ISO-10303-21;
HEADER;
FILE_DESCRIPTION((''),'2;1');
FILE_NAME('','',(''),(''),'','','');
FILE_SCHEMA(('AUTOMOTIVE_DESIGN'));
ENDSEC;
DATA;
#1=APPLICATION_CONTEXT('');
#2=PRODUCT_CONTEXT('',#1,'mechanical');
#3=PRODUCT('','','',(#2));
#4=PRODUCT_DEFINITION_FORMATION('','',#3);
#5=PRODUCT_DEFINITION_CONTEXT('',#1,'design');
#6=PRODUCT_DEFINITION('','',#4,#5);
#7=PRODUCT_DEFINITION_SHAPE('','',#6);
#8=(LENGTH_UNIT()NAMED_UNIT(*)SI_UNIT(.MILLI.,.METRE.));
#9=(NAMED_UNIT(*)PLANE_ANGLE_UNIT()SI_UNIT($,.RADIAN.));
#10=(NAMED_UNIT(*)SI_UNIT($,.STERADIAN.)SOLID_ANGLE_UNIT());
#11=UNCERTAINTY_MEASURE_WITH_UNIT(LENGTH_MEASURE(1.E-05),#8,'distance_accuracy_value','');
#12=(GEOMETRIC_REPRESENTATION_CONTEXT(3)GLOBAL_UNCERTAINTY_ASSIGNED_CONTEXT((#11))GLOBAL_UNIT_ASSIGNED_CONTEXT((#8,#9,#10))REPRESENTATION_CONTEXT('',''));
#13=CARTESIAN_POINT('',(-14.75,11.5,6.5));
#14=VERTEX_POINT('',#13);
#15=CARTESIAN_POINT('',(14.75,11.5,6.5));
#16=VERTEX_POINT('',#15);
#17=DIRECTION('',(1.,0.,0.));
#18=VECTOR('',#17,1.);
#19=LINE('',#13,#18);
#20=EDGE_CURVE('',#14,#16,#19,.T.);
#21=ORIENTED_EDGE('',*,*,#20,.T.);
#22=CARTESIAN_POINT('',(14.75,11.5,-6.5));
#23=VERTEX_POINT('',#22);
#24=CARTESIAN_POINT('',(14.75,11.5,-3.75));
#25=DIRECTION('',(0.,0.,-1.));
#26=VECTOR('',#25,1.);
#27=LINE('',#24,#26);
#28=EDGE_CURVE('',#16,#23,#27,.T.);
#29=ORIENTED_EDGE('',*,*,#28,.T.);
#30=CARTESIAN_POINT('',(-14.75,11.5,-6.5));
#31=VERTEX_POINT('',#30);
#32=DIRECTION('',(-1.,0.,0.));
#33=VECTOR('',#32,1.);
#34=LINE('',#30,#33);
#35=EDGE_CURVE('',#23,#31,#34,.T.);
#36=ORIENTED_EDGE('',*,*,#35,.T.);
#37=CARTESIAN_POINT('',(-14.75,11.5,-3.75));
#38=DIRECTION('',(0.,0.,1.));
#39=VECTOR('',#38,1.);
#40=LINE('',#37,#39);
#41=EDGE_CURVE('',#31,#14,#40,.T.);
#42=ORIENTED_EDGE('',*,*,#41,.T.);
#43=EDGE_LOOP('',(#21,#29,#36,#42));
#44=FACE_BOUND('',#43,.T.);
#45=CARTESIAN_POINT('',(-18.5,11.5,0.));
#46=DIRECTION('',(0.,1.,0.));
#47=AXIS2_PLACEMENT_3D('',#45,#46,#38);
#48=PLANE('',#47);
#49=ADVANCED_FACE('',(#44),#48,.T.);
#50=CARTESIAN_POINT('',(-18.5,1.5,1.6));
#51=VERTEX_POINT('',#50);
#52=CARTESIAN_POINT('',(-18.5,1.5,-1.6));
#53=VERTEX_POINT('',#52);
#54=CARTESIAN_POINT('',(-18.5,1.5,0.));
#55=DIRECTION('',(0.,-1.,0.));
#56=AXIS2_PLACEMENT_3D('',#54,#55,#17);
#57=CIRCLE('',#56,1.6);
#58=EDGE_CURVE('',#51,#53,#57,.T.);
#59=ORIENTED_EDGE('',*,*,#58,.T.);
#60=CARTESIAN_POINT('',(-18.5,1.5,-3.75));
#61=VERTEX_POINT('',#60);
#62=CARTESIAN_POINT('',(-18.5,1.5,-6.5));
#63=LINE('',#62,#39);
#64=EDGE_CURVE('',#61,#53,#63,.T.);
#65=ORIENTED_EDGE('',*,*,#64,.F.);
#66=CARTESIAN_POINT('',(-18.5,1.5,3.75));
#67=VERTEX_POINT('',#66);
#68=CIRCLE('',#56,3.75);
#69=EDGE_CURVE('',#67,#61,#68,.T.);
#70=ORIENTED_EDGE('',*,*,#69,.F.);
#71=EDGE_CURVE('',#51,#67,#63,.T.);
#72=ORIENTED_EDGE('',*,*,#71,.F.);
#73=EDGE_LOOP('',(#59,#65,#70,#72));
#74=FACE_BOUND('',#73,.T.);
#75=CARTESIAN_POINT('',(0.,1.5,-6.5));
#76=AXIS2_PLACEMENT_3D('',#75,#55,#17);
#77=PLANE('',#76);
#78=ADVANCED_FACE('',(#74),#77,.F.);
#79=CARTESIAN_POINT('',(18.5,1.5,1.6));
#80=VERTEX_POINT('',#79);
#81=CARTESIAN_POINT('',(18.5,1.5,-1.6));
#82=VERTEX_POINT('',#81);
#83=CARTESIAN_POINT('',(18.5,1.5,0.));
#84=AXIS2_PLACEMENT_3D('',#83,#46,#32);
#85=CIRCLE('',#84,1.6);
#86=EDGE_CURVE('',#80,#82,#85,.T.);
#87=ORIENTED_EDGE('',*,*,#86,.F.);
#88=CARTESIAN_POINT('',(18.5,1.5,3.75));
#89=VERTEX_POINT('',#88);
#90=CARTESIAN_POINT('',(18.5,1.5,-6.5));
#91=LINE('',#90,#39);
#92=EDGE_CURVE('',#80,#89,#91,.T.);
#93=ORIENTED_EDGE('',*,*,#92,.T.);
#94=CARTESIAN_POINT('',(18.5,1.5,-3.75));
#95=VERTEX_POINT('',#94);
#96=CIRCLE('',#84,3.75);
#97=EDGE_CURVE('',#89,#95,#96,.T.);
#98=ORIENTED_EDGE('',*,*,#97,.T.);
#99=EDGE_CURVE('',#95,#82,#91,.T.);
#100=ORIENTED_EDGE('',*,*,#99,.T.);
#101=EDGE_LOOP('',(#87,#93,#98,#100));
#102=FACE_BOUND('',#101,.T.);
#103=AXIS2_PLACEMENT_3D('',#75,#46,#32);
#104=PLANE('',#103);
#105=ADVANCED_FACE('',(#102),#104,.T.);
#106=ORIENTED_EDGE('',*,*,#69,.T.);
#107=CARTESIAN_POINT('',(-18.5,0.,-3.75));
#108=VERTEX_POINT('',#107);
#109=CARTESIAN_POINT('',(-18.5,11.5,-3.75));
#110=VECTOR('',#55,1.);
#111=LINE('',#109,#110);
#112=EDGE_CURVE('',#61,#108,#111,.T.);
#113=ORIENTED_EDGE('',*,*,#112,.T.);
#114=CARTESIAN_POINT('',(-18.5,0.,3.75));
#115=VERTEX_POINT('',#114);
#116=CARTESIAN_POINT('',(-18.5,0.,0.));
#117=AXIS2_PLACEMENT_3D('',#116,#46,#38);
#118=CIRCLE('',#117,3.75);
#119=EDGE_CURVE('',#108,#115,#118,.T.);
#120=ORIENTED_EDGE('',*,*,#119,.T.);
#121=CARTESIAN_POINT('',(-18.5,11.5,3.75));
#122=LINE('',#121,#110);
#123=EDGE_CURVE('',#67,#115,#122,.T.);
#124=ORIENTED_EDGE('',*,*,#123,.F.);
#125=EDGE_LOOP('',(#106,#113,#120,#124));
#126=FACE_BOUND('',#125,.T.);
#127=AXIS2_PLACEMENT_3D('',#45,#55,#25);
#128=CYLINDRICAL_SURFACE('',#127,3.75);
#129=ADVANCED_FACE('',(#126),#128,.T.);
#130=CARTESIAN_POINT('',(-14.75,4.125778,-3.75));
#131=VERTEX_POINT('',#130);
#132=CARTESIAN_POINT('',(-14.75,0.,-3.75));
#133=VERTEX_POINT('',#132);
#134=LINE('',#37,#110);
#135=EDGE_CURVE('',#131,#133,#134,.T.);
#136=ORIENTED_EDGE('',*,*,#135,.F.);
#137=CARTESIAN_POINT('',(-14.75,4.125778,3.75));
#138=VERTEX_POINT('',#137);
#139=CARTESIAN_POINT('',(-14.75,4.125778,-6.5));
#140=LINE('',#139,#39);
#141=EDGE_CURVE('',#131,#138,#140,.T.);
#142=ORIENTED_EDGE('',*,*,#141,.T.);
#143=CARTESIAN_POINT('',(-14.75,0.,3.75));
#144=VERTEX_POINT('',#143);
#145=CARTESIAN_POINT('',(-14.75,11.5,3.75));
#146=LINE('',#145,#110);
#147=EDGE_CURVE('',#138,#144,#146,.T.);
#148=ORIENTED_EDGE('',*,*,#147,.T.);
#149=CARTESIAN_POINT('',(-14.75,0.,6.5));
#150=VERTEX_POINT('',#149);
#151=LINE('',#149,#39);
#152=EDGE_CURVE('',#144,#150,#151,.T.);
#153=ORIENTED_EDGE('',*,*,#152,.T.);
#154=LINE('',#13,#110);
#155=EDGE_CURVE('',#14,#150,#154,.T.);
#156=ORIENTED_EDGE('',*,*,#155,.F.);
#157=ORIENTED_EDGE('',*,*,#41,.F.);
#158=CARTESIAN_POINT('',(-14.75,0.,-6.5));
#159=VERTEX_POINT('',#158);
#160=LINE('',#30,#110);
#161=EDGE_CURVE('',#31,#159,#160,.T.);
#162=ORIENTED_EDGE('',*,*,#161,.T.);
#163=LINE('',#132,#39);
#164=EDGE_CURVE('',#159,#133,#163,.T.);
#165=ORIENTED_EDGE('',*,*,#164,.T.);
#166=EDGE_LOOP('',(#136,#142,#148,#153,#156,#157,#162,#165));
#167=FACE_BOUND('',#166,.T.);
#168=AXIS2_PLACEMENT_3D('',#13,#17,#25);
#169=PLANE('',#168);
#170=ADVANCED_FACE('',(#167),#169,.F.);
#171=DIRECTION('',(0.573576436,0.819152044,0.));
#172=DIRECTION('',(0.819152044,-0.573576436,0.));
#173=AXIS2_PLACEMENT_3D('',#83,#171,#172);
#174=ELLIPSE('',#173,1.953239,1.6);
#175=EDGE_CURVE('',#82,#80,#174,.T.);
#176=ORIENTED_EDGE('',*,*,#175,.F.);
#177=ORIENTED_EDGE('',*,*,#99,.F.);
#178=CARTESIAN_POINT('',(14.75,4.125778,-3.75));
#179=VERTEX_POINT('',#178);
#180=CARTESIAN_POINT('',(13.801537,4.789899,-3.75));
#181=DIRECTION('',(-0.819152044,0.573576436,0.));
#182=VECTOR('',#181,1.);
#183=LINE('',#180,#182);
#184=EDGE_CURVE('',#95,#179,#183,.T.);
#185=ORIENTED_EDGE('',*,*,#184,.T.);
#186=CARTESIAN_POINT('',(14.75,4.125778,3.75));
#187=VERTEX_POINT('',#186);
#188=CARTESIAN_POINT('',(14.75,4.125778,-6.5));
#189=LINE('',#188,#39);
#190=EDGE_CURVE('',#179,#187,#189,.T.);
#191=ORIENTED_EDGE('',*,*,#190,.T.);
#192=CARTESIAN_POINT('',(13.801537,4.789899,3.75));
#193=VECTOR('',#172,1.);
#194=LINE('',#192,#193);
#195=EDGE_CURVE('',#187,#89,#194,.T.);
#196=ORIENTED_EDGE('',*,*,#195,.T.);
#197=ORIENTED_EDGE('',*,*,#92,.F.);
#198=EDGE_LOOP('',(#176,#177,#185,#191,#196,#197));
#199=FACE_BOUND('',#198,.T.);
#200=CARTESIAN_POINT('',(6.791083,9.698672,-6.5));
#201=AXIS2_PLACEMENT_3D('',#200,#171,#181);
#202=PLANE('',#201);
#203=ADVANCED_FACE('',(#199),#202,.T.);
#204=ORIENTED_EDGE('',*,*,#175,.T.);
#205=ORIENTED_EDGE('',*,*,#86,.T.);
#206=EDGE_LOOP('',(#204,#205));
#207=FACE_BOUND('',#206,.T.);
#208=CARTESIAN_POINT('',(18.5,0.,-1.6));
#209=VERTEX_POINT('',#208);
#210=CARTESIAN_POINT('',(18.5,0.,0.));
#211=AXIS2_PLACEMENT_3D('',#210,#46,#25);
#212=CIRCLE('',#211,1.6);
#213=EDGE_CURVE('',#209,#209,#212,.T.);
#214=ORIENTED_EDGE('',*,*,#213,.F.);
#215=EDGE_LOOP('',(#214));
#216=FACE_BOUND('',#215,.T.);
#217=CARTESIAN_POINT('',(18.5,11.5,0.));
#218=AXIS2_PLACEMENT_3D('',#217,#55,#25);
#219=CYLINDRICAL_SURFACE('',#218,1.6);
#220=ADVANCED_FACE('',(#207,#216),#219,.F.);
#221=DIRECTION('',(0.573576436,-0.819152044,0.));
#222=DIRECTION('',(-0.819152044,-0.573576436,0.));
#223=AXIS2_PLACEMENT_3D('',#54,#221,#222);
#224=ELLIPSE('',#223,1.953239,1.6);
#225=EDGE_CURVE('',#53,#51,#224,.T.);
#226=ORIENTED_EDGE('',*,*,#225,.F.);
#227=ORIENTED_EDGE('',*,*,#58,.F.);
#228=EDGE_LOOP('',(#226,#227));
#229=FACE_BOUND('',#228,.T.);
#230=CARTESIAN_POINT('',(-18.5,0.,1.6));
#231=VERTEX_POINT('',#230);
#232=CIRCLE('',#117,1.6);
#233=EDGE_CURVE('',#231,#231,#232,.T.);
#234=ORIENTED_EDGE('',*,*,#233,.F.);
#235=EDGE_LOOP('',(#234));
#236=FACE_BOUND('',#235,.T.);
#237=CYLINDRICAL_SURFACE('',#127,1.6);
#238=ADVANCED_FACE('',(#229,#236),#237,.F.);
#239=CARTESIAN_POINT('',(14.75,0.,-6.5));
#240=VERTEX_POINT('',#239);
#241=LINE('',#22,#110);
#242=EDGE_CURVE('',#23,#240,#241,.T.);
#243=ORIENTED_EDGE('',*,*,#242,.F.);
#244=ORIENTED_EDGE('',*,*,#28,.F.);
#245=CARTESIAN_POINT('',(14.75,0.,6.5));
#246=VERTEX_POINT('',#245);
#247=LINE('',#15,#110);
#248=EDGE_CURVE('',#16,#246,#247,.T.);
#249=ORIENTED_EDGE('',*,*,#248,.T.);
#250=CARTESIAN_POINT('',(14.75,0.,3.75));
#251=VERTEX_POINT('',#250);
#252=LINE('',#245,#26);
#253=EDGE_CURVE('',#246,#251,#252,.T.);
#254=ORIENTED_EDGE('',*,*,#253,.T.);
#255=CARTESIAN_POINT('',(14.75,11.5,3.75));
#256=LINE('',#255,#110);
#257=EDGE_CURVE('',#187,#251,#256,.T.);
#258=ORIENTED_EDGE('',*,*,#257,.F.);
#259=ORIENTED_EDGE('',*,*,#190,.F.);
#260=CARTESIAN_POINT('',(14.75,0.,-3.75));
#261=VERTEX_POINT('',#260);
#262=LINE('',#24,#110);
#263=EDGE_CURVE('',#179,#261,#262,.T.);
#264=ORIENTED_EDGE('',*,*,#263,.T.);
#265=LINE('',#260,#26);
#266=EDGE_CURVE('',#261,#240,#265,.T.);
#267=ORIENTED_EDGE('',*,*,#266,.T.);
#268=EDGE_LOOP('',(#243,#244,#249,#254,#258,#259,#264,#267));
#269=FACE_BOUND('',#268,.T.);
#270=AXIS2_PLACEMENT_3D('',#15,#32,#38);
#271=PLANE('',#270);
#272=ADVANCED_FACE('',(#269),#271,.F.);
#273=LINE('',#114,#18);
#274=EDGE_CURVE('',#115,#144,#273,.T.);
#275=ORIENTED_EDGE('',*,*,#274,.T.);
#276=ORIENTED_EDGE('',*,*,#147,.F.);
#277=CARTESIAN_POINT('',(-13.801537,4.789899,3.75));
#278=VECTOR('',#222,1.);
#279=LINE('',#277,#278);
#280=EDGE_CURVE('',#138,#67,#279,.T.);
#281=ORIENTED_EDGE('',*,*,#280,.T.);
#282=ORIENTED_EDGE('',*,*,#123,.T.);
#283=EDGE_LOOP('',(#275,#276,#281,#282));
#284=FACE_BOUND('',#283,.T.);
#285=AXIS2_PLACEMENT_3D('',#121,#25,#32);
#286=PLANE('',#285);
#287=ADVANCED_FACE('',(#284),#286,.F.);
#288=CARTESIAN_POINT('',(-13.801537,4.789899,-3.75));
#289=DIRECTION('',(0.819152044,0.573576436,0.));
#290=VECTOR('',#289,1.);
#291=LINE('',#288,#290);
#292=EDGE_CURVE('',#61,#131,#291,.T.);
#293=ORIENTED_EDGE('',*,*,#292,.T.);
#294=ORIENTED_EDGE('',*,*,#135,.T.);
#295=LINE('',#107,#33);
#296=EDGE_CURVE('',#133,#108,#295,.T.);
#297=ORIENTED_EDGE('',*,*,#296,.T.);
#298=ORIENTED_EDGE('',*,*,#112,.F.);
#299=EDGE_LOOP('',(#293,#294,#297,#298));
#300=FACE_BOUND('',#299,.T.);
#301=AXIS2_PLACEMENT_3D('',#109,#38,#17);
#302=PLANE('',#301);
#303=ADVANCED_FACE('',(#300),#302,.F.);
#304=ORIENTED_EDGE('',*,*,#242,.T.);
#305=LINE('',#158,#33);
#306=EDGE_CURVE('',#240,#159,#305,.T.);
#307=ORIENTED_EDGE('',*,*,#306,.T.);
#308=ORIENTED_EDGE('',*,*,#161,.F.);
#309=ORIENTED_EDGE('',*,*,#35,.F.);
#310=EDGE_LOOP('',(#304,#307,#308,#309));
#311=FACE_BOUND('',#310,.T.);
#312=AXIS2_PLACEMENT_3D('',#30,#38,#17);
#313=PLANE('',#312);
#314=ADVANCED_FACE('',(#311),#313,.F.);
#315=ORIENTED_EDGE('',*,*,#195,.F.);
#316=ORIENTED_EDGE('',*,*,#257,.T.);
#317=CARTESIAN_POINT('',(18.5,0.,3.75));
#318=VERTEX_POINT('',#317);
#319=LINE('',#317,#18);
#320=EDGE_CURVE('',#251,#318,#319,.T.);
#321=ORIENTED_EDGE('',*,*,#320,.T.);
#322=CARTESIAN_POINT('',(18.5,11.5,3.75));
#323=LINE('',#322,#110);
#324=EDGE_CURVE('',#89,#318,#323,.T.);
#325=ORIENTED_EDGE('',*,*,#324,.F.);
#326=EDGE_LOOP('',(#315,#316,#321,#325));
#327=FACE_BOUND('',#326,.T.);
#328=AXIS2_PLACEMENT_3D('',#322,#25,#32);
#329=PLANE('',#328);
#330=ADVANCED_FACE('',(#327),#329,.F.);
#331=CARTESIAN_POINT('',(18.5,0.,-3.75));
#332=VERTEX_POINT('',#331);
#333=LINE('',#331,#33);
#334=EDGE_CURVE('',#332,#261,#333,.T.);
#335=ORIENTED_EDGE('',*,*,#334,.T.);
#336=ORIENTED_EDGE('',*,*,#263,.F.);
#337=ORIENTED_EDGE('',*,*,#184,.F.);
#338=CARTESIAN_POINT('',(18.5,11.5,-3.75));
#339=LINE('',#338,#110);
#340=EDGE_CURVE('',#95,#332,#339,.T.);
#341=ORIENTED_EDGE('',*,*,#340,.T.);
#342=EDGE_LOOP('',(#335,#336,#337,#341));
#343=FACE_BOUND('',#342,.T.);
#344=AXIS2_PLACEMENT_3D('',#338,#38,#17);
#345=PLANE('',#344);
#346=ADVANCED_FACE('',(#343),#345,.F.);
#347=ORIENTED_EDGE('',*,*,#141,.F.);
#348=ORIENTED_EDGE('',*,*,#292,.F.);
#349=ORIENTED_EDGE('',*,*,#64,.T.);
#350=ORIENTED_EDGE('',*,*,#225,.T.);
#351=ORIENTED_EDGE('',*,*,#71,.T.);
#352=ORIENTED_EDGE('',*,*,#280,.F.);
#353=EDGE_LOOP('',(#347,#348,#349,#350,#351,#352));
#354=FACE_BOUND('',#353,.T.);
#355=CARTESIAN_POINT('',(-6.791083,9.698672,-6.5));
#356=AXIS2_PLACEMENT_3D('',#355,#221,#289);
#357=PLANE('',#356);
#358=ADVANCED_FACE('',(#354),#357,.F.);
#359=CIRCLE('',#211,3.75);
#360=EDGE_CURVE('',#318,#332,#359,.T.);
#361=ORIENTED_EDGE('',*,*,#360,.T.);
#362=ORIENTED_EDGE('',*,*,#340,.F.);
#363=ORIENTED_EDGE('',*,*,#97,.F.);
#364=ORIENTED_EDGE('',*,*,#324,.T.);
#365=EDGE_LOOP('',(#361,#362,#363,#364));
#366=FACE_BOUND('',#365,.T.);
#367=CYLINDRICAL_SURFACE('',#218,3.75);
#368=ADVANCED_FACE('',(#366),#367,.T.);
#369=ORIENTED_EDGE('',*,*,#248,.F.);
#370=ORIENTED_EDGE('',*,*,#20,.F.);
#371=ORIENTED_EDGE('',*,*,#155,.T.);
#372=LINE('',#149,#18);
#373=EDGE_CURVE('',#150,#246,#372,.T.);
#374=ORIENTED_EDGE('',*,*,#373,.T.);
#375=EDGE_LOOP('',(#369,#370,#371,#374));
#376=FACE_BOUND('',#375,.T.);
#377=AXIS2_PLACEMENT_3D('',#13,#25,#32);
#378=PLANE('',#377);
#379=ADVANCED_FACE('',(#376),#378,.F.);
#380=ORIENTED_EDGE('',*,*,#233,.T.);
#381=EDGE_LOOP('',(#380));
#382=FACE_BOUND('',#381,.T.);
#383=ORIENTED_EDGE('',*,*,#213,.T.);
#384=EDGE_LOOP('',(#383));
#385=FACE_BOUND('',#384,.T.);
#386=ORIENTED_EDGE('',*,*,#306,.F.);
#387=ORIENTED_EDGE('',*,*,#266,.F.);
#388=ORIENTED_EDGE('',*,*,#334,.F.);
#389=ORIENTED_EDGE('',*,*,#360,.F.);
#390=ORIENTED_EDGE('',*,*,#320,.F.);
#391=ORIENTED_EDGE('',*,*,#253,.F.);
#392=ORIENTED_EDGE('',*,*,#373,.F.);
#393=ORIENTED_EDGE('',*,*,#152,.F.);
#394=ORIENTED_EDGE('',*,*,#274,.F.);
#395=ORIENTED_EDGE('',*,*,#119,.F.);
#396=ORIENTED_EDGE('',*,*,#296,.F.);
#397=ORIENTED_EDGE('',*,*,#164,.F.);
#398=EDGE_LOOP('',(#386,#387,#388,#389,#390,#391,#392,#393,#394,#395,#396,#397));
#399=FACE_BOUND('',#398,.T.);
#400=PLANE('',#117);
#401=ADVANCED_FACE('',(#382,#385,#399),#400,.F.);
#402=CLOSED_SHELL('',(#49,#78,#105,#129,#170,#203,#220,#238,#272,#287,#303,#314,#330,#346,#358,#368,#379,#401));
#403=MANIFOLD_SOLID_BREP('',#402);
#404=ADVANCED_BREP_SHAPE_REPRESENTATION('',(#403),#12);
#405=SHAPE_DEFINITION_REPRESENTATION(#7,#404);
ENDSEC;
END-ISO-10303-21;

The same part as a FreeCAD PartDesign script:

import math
import FreeCAD as App
import Part
import Sketcher
from FreeCAD import Vector
Q = App.Units.Quantity

doc = App.newDocument("Part")
body = doc.addObject("PartDesign::Body", "Body")

sketch1 = body.newObject("Sketcher::SketchObject", "Sketch")
sketch1.AttachmentSupport = (doc.getObject("XZ_Plane"), [""])
sketch1.MapMode = "FlatFace"
sketch1.addGeometry([
    Part.LineSegment(Vector(-14.75, 6.5, 0), Vector(14.75, 6.5, 0)),
    Part.LineSegment(Vector(14.75, 6.5, 0), Vector(14.75, 3.75, 0)),
    Part.LineSegment(Vector(14.75, 3.75, 0), Vector(18.5, 3.75, 0)),
    Part.ArcOfCircle(Part.Circle(Vector(18.5, 0, 0), Vector(0, 0, 1), 3.75), math.radians(-90), math.radians(90)),
    Part.LineSegment(Vector(18.5, -3.75, 0), Vector(14.75, -3.75, 0)),
    Part.LineSegment(Vector(14.75, -3.75, 0), Vector(14.75, -6.5, 0)),
    Part.LineSegment(Vector(14.75, -6.5, 0), Vector(-14.75, -6.5, 0)),
    Part.LineSegment(Vector(-14.75, -6.5, 0), Vector(-14.75, -3.75, 0)),
    Part.LineSegment(Vector(-14.75, -3.75, 0), Vector(-18.5, -3.75, 0)),
    Part.ArcOfCircle(Part.Circle(Vector(-18.5, 0, 0), Vector(0, 0, 1), 3.75), math.radians(90), math.radians(270)),
    Part.LineSegment(Vector(-18.5, 3.75, 0), Vector(-14.75, 3.75, 0)),
    Part.LineSegment(Vector(-14.75, 3.75, 0), Vector(-14.75, 6.5, 0)),
    Part.Circle(Vector(-18.5, 0, 0), Vector(0, 0, 1), 1.6),
    Part.Circle(Vector(18.5, 0, 0), Vector(0, 0, 1), 1.6),
], False)
sketch1.addConstraint([
    Sketcher.Constraint("Coincident", 0, 2, 1, 1),
    Sketcher.Constraint("Coincident", 1, 2, 2, 1),
    Sketcher.Constraint("Tangent", 2, 2, 3, 2),
    Sketcher.Constraint("Tangent", 3, 1, 4, 1),
    Sketcher.Constraint("Coincident", 4, 2, 5, 1),
    Sketcher.Constraint("Coincident", 5, 2, 6, 1),
    Sketcher.Constraint("Coincident", 6, 2, 7, 1),
    Sketcher.Constraint("Coincident", 7, 2, 8, 1),
    Sketcher.Constraint("Tangent", 8, 2, 9, 2),
    Sketcher.Constraint("Tangent", 9, 1, 10, 1),
    Sketcher.Constraint("Coincident", 10, 2, 11, 1),
    Sketcher.Constraint("Coincident", 11, 2, 0, 1),
    Sketcher.Constraint("Horizontal", 0),
    Sketcher.Constraint("Vertical", 1),
    Sketcher.Constraint("Horizontal", 2),
    Sketcher.Constraint("Horizontal", 4),
    Sketcher.Constraint("Vertical", 5),
    Sketcher.Constraint("Horizontal", 6),
    Sketcher.Constraint("Vertical", 7),
    Sketcher.Constraint("Horizontal", 8),
    Sketcher.Constraint("Horizontal", 10),
    Sketcher.Constraint("Vertical", 11),
    Sketcher.Constraint("Coincident", 12, 3, 9, 3),
    Sketcher.Constraint("Coincident", 13, 3, 3, 3),
    Sketcher.Constraint("Equal", 3, 9),
    Sketcher.Constraint("Equal", 12, 13),
    Sketcher.Constraint("Symmetric", 3, 3, 9, 3, -1, 1),
    Sketcher.Constraint("Symmetric", 0, 2, 6, 2, -1, 1),
    Sketcher.Constraint("Symmetric", 4, 2, 7, 2, -2),
    Sketcher.Constraint("Vertical", 7, 2, 10, 2),
    Sketcher.Constraint("Diameter", 12, 3.2),
    Sketcher.Constraint("Radius", 3, 3.75),
    Sketcher.Constraint("DistanceX", 0, 1, 0, 2, 29.5),
    Sketcher.Constraint("DistanceX", 9, 3, 3, 3, 37.0),
    Sketcher.Constraint("DistanceY", 1, 2, 1, 1, 2.75),
])
pad1 = body.newObject("PartDesign::Pad", "Pad")
pad1.Profile = sketch1
pad1.Length = 11.5
pad1.Reversed = True

sketch2 = body.newObject("Sketcher::SketchObject", "Sketch001")
sketch2.AttachmentSupport = (doc.getObject("XY_Plane"), [""])
sketch2.MapMode = "FlatFace"
sketch2.addGeometry([
    Part.LineSegment(Vector(22.25, 1.5, 0), Vector(22.25, 11.5, 0)),
    Part.LineSegment(Vector(22.25, 11.5, 0), Vector(14.75, 11.5, 0)),
    Part.LineSegment(Vector(14.75, 11.5, 0), Vector(14.75, 4.125778, 0)),
    Part.LineSegment(Vector(14.75, 4.125778, 0), Vector(18.5, 1.5, 0)),
    Part.LineSegment(Vector(18.5, 1.5, 0), Vector(22.25, 1.5, 0)),
    Part.LineSegment(Vector(-22.25, 11.5, 0), Vector(-22.25, 1.5, 0)),
    Part.LineSegment(Vector(-22.25, 1.5, 0), Vector(-18.5, 1.5, 0)),
    Part.LineSegment(Vector(-18.5, 1.5, 0), Vector(-14.75, 4.125778, 0)),
    Part.LineSegment(Vector(-14.75, 4.125778, 0), Vector(-14.75, 11.5, 0)),
    Part.LineSegment(Vector(-14.75, 11.5, 0), Vector(-22.25, 11.5, 0)),
], False)
sketch2.addConstraint([
    Sketcher.Constraint("Coincident", 0, 2, 1, 1),
    Sketcher.Constraint("Coincident", 1, 2, 2, 1),
    Sketcher.Constraint("Coincident", 2, 2, 3, 1),
    Sketcher.Constraint("Coincident", 3, 2, 4, 1),
    Sketcher.Constraint("Coincident", 4, 2, 0, 1),
    Sketcher.Constraint("Coincident", 5, 2, 6, 1),
    Sketcher.Constraint("Coincident", 6, 2, 7, 1),
    Sketcher.Constraint("Coincident", 7, 2, 8, 1),
    Sketcher.Constraint("Coincident", 8, 2, 9, 1),
    Sketcher.Constraint("Coincident", 9, 2, 5, 1),
    Sketcher.Constraint("Vertical", 0),
    Sketcher.Constraint("Horizontal", 1),
    Sketcher.Constraint("Vertical", 2),
    Sketcher.Constraint("Horizontal", 4),
    Sketcher.Constraint("Vertical", 5),
    Sketcher.Constraint("Horizontal", 6),
    Sketcher.Constraint("Vertical", 8),
    Sketcher.Constraint("Horizontal", 9),
    Sketcher.Constraint("Symmetric", 4, 2, 5, 2, -2),
    Sketcher.Constraint("Symmetric", 2, 2, 7, 2, -2),
    Sketcher.Constraint("Horizontal", 1, 2, 8, 2),
    Sketcher.Constraint("Equal", 4, 6),
    Sketcher.Constraint("DistanceY", 0, 1, 0, 2, 10.0),
    Sketcher.Constraint("Angle", 3, Q("-35 deg")),
    Sketcher.Constraint("DistanceX", 1, 2, 1, 1, 7.5),
    Sketcher.Constraint("DistanceX", 5, 2, 2, 2, 37.0),
    Sketcher.Constraint("DistanceX", 6, 2, 3, 2, 37.0),
    Sketcher.Constraint("DistanceY", -1, 1, 0, 2, 11.5),
])
pocket1 = body.newObject("PartDesign::Pocket", "Pocket")
pocket1.Profile = sketch2
pocket1.Type = "ThroughAll"
pocket1.Midplane = True

doc.recompute()
